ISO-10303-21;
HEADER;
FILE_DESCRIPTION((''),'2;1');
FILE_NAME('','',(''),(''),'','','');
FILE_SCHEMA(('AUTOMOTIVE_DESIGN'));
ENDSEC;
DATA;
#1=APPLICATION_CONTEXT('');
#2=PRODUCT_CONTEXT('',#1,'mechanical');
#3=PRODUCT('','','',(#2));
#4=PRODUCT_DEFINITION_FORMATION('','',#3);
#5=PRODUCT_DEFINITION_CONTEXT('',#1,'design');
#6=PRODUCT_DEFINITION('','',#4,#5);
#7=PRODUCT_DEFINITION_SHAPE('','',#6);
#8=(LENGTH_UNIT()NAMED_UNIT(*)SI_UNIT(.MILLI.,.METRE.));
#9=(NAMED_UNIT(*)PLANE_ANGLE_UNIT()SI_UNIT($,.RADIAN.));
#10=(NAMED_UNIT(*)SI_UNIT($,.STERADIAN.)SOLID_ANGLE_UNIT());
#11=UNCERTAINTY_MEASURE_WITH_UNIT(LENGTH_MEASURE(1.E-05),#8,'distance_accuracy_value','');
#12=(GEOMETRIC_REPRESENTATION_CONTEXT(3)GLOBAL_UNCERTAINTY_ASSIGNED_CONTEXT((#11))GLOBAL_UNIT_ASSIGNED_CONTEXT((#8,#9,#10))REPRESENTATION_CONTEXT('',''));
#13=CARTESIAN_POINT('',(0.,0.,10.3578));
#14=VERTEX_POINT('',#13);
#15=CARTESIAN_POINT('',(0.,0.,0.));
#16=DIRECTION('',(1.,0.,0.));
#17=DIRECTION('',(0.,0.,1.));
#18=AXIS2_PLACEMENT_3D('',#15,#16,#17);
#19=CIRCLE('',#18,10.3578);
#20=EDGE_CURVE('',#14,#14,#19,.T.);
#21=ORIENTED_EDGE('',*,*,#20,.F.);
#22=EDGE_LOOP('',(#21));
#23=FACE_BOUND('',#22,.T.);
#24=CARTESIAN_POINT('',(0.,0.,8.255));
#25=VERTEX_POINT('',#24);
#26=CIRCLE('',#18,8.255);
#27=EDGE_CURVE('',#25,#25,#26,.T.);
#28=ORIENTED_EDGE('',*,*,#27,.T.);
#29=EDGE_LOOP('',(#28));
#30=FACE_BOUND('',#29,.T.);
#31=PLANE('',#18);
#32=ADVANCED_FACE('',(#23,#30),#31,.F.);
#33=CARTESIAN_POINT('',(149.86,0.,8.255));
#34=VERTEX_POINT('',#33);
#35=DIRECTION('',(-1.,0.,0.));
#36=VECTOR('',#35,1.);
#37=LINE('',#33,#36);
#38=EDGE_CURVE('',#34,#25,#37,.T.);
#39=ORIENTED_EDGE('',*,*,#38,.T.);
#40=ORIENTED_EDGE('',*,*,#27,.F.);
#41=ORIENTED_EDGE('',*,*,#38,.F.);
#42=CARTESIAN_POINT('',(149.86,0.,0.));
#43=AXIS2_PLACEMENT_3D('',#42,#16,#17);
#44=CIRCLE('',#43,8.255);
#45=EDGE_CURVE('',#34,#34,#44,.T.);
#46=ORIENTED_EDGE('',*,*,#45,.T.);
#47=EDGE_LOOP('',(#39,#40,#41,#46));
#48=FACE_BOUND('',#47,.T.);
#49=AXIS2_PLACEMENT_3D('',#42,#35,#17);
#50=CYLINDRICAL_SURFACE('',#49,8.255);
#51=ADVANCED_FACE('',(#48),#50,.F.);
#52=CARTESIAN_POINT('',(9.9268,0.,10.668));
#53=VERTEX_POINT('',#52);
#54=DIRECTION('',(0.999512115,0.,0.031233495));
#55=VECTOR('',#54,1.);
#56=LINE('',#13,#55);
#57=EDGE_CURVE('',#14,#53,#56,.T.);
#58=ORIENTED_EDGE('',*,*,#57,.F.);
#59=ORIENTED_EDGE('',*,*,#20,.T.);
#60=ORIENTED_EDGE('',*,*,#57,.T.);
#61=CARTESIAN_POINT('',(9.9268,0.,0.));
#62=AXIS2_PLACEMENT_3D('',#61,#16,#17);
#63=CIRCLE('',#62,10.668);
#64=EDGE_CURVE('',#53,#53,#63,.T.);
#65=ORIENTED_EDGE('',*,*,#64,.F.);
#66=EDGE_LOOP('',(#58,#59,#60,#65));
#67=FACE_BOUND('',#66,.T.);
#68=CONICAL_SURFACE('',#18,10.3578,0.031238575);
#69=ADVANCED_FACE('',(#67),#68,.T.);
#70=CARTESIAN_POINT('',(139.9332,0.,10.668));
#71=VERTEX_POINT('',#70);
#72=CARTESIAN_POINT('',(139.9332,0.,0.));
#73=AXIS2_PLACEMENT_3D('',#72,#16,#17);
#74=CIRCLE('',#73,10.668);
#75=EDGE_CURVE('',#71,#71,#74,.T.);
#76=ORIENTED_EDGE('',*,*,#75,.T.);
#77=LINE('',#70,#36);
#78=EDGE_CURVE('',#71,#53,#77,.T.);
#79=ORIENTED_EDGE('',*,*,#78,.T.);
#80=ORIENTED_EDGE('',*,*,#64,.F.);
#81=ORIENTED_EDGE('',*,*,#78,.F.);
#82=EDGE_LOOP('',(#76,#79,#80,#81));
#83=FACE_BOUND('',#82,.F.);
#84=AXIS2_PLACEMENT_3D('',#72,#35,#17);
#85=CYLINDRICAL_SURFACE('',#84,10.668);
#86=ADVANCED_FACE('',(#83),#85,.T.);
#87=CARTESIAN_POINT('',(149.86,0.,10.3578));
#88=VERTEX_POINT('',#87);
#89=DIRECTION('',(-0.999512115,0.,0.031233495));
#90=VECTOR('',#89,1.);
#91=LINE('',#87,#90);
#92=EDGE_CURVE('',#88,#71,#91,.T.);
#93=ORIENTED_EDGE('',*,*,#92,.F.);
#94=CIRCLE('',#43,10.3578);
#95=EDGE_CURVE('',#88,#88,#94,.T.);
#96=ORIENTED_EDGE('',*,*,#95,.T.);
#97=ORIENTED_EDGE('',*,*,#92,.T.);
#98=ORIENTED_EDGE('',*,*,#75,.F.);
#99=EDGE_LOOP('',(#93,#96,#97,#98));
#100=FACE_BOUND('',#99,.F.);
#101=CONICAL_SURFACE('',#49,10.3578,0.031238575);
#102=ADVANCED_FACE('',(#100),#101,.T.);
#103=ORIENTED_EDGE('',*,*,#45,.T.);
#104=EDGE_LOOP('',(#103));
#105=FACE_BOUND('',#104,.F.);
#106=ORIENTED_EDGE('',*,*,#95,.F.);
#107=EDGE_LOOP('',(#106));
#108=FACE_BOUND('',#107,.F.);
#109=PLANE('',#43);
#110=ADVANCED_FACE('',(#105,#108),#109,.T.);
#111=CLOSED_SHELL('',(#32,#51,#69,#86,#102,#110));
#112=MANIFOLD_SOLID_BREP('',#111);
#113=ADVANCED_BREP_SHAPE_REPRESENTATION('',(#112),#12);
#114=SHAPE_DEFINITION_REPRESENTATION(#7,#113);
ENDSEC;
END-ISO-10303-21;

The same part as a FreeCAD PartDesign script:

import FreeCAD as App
import Part
import Sketcher
Q = App.Units.Quantity

doc = App.newDocument("Part")
body = doc.addObject("PartDesign::Body", "Body")

# Sketch on XZ plane
sketch1 = body.newObject("Sketcher::SketchObject", "Sketch")
sketch1.AttachmentSupport = (doc.getObject("XZ_Plane"), [""])
sketch1.MapMode = "FlatFace"
sketch1.addGeometry([
    Part.LineSegment(App.Vector(149.9, 10.4, 0), App.Vector(149.9, 8.3, 0)),  # 0
    Part.LineSegment(App.Vector(149.9, 8.3, 0), App.Vector(0, 8.3, 0)),  # 1
    Part.LineSegment(App.Vector(0, 8.3, 0), App.Vector(0, 10.4, 0)),  # 2
    Part.LineSegment(App.Vector(0, 10.4, 0), App.Vector(9.9, 10.7, 0)),  # 3
    Part.LineSegment(App.Vector(9.9, 10.7, 0), App.Vector(139.9, 10.7, 0)),  # 4
    Part.LineSegment(App.Vector(139.9, 10.7, 0), App.Vector(149.9, 10.4, 0)),  # 5
], False)
sketch1.addConstraint([
    Sketcher.Constraint("Coincident", 0, 2, 1, 1),
    Sketcher.Constraint("Coincident", 1, 2, 2, 1),
    Sketcher.Constraint("Coincident", 2, 2, 3, 1),
    Sketcher.Constraint("Coincident", 3, 2, 4, 1),
    Sketcher.Constraint("Coincident", 4, 2, 5, 1),
    Sketcher.Constraint("Coincident", 5, 2, 0, 1),
    Sketcher.Constraint("Vertical", 0),
    Sketcher.Constraint("Horizontal", 1),
    Sketcher.Constraint("Vertical", 2),
    Sketcher.Constraint("Horizontal", 4),
    Sketcher.Constraint("PointOnObject", 1, 2, -2),
    Sketcher.Constraint("Horizontal", 2, 2, 5, 2),
    Sketcher.Constraint("Equal", 3, 5),
    Sketcher.Constraint("DistanceX", 1, 2, 1, 1, Q("5.9 in")),
    Sketcher.Constraint("Angle", 3, Q("1.7898 deg")),
    Sketcher.Constraint("DistanceY", -1, 1, 3, 2, Q("0.42 in")),
    Sketcher.Constraint("Distance", 3, Q("0.391 in")),
    Sketcher.Constraint("DistanceY", -1, 1, 0, 2, Q("0.325 in")),
])
revolution = body.newObject("PartDesign::Revolution", "Revolution")
revolution.Profile = sketch1
revolution.ReferenceAxis = (sketch1, ["H_Axis"])
revolution.Angle = 360

doc.recompute()
